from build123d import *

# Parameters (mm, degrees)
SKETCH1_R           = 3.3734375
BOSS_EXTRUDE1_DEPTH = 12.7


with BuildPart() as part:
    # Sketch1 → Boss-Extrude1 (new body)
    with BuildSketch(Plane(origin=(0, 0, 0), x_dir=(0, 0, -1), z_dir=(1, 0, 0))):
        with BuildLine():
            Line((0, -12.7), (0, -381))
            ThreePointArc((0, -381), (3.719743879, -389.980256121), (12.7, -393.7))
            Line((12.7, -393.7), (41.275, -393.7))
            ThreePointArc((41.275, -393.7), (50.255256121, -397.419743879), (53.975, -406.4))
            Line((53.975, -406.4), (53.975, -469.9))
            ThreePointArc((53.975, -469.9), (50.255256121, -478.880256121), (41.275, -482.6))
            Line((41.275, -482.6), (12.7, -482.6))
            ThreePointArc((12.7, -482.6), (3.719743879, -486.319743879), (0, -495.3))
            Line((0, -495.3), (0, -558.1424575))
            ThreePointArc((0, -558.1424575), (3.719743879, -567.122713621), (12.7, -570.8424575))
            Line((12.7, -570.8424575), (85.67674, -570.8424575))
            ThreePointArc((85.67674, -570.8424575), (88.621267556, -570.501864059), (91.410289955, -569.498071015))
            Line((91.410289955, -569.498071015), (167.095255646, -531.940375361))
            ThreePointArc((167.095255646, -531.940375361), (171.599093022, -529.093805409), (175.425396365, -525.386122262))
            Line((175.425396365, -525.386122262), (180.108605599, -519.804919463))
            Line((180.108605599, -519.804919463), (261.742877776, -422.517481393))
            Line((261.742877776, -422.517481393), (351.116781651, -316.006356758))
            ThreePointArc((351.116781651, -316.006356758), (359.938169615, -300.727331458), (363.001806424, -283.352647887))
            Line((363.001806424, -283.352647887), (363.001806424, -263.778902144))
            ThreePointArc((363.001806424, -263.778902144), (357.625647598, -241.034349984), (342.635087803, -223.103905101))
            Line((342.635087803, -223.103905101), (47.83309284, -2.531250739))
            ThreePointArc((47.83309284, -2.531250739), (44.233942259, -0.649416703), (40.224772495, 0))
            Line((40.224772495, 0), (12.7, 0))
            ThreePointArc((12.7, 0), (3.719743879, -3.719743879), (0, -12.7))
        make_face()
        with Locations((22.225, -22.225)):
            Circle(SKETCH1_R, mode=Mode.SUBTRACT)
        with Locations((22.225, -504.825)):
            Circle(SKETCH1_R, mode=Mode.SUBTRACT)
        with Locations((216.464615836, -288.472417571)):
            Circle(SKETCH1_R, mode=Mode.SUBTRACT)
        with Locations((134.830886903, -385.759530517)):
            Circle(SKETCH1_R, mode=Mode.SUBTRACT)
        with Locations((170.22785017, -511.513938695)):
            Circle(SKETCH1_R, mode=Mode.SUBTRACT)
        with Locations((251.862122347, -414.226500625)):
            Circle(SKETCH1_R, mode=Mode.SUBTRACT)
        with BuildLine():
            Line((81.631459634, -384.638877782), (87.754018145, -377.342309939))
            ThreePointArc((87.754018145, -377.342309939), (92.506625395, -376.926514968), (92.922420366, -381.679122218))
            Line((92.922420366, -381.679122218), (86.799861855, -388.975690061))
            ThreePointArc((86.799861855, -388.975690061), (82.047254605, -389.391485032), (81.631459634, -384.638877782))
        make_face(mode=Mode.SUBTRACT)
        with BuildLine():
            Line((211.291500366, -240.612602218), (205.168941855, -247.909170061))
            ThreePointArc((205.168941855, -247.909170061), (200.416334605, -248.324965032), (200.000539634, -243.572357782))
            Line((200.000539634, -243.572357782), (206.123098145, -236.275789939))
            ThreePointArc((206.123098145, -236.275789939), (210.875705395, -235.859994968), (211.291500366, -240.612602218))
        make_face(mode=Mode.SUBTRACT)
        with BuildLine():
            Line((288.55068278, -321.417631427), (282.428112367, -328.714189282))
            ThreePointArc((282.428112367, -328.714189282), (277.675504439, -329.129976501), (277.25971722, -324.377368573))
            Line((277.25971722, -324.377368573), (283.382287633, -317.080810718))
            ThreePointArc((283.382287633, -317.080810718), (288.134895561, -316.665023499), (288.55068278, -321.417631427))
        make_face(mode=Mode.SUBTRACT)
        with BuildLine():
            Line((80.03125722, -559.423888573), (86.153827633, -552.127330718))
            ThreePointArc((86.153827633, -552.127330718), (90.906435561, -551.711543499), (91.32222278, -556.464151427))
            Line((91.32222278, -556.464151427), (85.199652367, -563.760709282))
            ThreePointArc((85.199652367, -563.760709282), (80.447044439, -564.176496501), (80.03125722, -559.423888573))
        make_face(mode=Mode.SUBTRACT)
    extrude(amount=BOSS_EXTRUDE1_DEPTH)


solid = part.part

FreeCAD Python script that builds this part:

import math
import FreeCAD as App
import Part
import Sketcher
from FreeCAD import Vector
Q = App.Units.Quantity

doc = App.newDocument("Part")
body = doc.addObject("PartDesign::Body", "Body")

# Sketch on YZ plane
sketch1 = body.newObject("Sketcher::SketchObject", "Sketch")
sketch1.AttachmentSupport = (doc.getObject("YZ_Plane"), [""])
sketch1.MapMode = "FlatFace"
sketch1.addGeometry(Part.LineSegment(Vector(-12.7, 0, 0), Vector(-381, 0, 0)), False)
sketch1.addGeometry(Part.ArcOfCircle(Part.Circle(Vector(-381, -12.7, 0), Vector(0, 0, 1), 12.7), math.radians(90), math.radians(180)), False)
sketch1.addGeometry(Part.LineSegment(Vector(-393.7, -12.7, 0), Vector(-393.7, -41.275, 0)), False)
sketch1.addGeometry(Part.ArcOfCircle(Part.Circle(Vector(-406.4, -41.275, 0), Vector(0, 0, 1), 12.7), math.radians(-90), math.radians(0)), False)
sketch1.addGeometry(Part.LineSegment(Vector(-406.4, -53.975, 0), Vector(-469.9, -53.975, 0)), False)
sketch1.addGeometry(Part.ArcOfCircle(Part.Circle(Vector(-469.9, -41.275, 0), Vector(0, 0, 1), 12.7), math.radians(180), math.radians(270)), False)
sketch1.addGeometry(Part.LineSegment(Vector(-482.6, -41.275, 0), Vector(-482.6, -12.7, 0)), False)
sketch1.addGeometry(Part.ArcOfCircle(Part.Circle(Vector(-495.3, -12.7, 0), Vector(0, 0, 1), 12.7), math.radians(0), math.radians(90)), False)
sketch1.addGeometry(Part.LineSegment(Vector(-495.3, 0, 0), Vector(-558.142457, 0, 0)), False)
sketch1.addGeometry(Part.ArcOfCircle(Part.Circle(Vector(-558.142457, -12.7, 0), Vector(0, 0, 1), 12.7), math.radians(90), math.radians(180)), False)
sketch1.addGeometry(Part.LineSegment(Vector(-570.842458, -12.7, 0), Vector(-570.842458, -85.67674, 0)), False)
sketch1.addGeometry(Part.ArcOfCircle(Part.Circle(Vector(-557.94402, -85.67674, 0), Vector(0, 0, 1), 12.898438), math.radians(-180), math.radians(-153.607682)), False)
sketch1.addGeometry(Part.LineSegment(Vector(-569.498071, -91.41029, 0), Vector(-531.940375, -167.095256, 0)), False)
sketch1.addGeometry(Part.ArcOfCircle(Part.Circle(Vector(-508.732731, -155.578759, 0), Vector(0, 0, 1), 25.908), math.radians(-153.607682), math.radians(-130.000145)), False)
sketch1.addGeometry(Part.LineSegment(Vector(-525.386122, -175.425396, 0), Vector(-519.804919, -180.108606, 0)), False)
sketch1.addGeometry(Part.LineSegment(Vector(-519.804919, -180.108606, 0), Vector(-422.517481, -261.742878, 0)), False)
sketch1.addGeometry(Part.LineSegment(Vector(-422.517481, -261.742878, 0), Vector(-316.006357, -351.116782, 0)), False)
sketch1.addGeometry(Part.ArcOfCircle(Part.Circle(Vector(-283.352648, -312.201806, 0), Vector(0, 0, 1), 50.8), math.radians(-130.000145), math.radians(-90)), False)
sketch1.addGeometry(Part.LineSegment(Vector(-283.352648, -363.001806, 0), Vector(-263.778902, -363.001806, 0)), False)
sketch1.addGeometry(Part.ArcOfCircle(Part.Circle(Vector(-263.778902, -312.201806, 0), Vector(0, 0, 1), 50.8), math.radians(-90), math.radians(-36.80406)), False)
sketch1.addGeometry(Part.LineSegment(Vector(-223.103905, -342.635088, 0), Vector(-2.531251, -47.833093, 0)), False)
sketch1.addGeometry(Part.ArcOfCircle(Part.Circle(Vector(-12.7, -40.224772, 0), Vector(0, 0, 1), 12.7), math.radians(-36.80406), math.radians(0)), False)
sketch1.addGeometry(Part.LineSegment(Vector(0, -40.224772, 0), Vector(0, -12.7, 0)), False)
sketch1.addGeometry(Part.ArcOfCircle(Part.Circle(Vector(-12.7, -12.7, 0), Vector(0, 0, 1), 12.7), math.radians(0), math.radians(90)), False)
sketch1.addGeometry(Part.Circle(Vector(-504.825, -22.225, 0), Vector(0, 0, 1), 3.373438), False)
sketch1.addGeometry(Part.ArcOfCircle(Part.Circle(Vector(-561.592299, -82.615455, 0), Vector(0, 0, 1), 3.373438), math.radians(49.999855), math.radians(229.999855)), False)
sketch1.addGeometry(Part.LineSegment(Vector(-559.423889, -80.031257, 0), Vector(-552.127331, -86.153828, 0)), False)
sketch1.addGeometry(Part.ArcOfCircle(Part.Circle(Vector(-554.295741, -88.738025, 0), Vector(0, 0, 1), 3.373438), math.radians(-130.000145), math.radians(49.999855)), False)
sketch1.addGeometry(Part.LineSegment(Vector(-556.464151, -91.322223, 0), Vector(-563.760709, -85.199652, 0)), False)
sketch1.addGeometry(Part.ArcOfCircle(Part.Circle(Vector(-386.807284, -84.215661, 0), Vector(0, 0, 1), 3.373438), math.radians(49.999949), math.radians(229.999949)), False)
sketch1.addGeometry(Part.LineSegment(Vector(-384.638878, -81.63146, 0), Vector(-377.34231, -87.754018, 0)), False)
sketch1.addGeometry(Part.ArcOfCircle(Part.Circle(Vector(-379.510716, -90.338219, 0), Vector(0, 0, 1), 3.373438), math.radians(-130.000051), math.radians(49.999949)), False)
sketch1.addGeometry(Part.LineSegment(Vector(-381.679122, -92.92242, 0), Vector(-388.97569, -86.799862, 0)), False)
sketch1.addGeometry(Part.Circle(Vector(-385.759531, -134.830887, 0), Vector(0, 0, 1), 3.373438), False)
sketch1.addGeometry(Part.Circle(Vector(-511.513939, -170.22785, 0), Vector(0, 0, 1), 3.373438), False)
sketch1.addGeometry(Part.Circle(Vector(-414.226501, -251.862122, 0), Vector(0, 0, 1), 3.373438), False)
sketch1.addGeometry(Part.ArcOfCircle(Part.Circle(Vector(-319.249221, -285.966485, 0), Vector(0, 0, 1), 3.373438), math.radians(-130.000145), math.radians(49.999855)), False)
sketch1.addGeometry(Part.LineSegment(Vector(-321.417631, -288.550683, 0), Vector(-328.714189, -282.428112, 0)), False)
sketch1.addGeometry(Part.ArcOfCircle(Part.Circle(Vector(-326.545779, -279.843915, 0), Vector(0, 0, 1), 3.373438), math.radians(49.999855), math.radians(229.999855)), False)
sketch1.addGeometry(Part.LineSegment(Vector(-324.377369, -277.259717, 0), Vector(-317.080811, -283.382288, 0)), False)
sketch1.addGeometry(Part.Circle(Vector(-22.225, -22.225, 0), Vector(0, 0, 1), 3.373438), False)
sketch1.addGeometry(Part.Circle(Vector(-288.472418, -216.464616, 0), Vector(0, 0, 1), 3.373438), False)
sketch1.addGeometry(Part.ArcOfCircle(Part.Circle(Vector(-238.444196, -208.707299, 0), Vector(0, 0, 1), 3.373438), math.radians(-130.000051), math.radians(49.999949)), False)
sketch1.addGeometry(Part.LineSegment(Vector(-240.612602, -211.2915, 0), Vector(-247.90917, -205.168942, 0)), False)
sketch1.addGeometry(Part.ArcOfCircle(Part.Circle(Vector(-245.740764, -202.584741, 0), Vector(0, 0, 1), 3.373438), math.radians(49.999949), math.radians(229.999949)), False)
sketch1.addGeometry(Part.LineSegment(Vector(-243.572358, -200.00054, 0), Vector(-236.27579, -206.123098, 0)), False)
sketch1.addConstraint(Sketcher.Constraint("Coincident", 0, 2, 1, 1))
sketch1.addConstraint(Sketcher.Constraint("Coincident", 1, 2, 2, 1))
sketch1.addConstraint(Sketcher.Constraint("Coincident", 2, 2, 3, 2))
sketch1.addConstraint(Sketcher.Constraint("Coincident", 3, 1, 4, 1))
sketch1.addConstraint(Sketcher.Constraint("Coincident", 4, 2, 5, 2))
sketch1.addConstraint(Sketcher.Constraint("Coincident", 5, 1, 6, 1))
sketch1.addConstraint(Sketcher.Constraint("Coincident", 6, 2, 7, 1))
sketch1.addConstraint(Sketcher.Constraint("Coincident", 7, 2, 8, 1))
sketch1.addConstraint(Sketcher.Constraint("Coincident", 8, 2, 9, 1))
sketch1.addConstraint(Sketcher.Constraint("Coincident", 9, 2, 10, 1))
sketch1.addConstraint(Sketcher.Constraint("Coincident", 10, 2, 11, 1))
sketch1.addConstraint(Sketcher.Constraint("Coincident", 11, 2, 12, 1))
sketch1.addConstraint(Sketcher.Constraint("Coincident", 12, 2, 13, 1))
sketch1.addConstraint(Sketcher.Constraint("Coincident", 13, 2, 14, 1))
sketch1.addConstraint(Sketcher.Constraint("Coincident", 14, 2, 15, 1))
sketch1.addConstraint(Sketcher.Constraint("Coincident", 15, 2, 16, 1))
sketch1.addConstraint(Sketcher.Constraint("Coincident", 16, 2, 17, 1))
sketch1.addConstraint(Sketcher.Constraint("Coincident", 17, 2, 18, 1))
sketch1.addConstraint(Sketcher.Constraint("Coincident", 18, 2, 19, 1))
sketch1.addConstraint(Sketcher.Constraint("Coincident", 19, 2, 20, 1))
sketch1.addConstraint(Sketcher.Constraint("Coincident", 20, 2, 21, 1))
sketch1.addConstraint(Sketcher.Constraint("Coincident", 21, 2, 22, 1))
sketch1.addConstraint(Sketcher.Constraint("Coincident", 22, 2, 23, 1))
sketch1.addConstraint(Sketcher.Constraint("Coincident", 23, 2, 0, 1))
sketch1.addConstraint(Sketcher.Constraint("Coincident", 25, 1, 26, 1))
sketch1.addConstraint(Sketcher.Constraint("Coincident", 26, 2, 27, 2))
sketch1.addConstraint(Sketcher.Constraint("Coincident", 27, 1, 28, 1))
sketch1.addConstraint(Sketcher.Constraint("Coincident", 28, 2, 25, 2))
sketch1.addConstraint(Sketcher.Constraint("Coincident", 29, 1, 30, 1))
sketch1.addConstraint(Sketcher.Constraint("Coincident", 30, 2, 31, 2))
sketch1.addConstraint(Sketcher.Constraint("Coincident", 31, 1, 32, 1))
sketch1.addConstraint(Sketcher.Constraint("Coincident", 32, 2, 29, 2))
sketch1.addConstraint(Sketcher.Constraint("Coincident", 36, 1, 37, 1))
sketch1.addConstraint(Sketcher.Constraint("Coincident", 37, 2, 38, 2))
sketch1.addConstraint(Sketcher.Constraint("Coincident", 38, 1, 39, 1))
sketch1.addConstraint(Sketcher.Constraint("Coincident", 39, 2, 36, 2))
sketch1.addConstraint(Sketcher.Constraint("Coincident", 42, 1, 43, 1))
sketch1.addConstraint(Sketcher.Constraint("Coincident", 43, 2, 44, 2))
sketch1.addConstraint(Sketcher.Constraint("Coincident", 44, 1, 45, 1))
sketch1.addConstraint(Sketcher.Constraint("Coincident", 45, 2, 42, 2))
sketch1.addConstraint(Sketcher.Constraint("Horizontal", 0))
sketch1.addConstraint(Sketcher.Constraint("Vertical", 2))
sketch1.addConstraint(Sketcher.Constraint("Horizontal", 4))
sketch1.addConstraint(Sketcher.Constraint("Vertical", 6))
sketch1.addConstraint(Sketcher.Constraint("Horizontal", 8))
sketch1.addConstraint(Sketcher.Constraint("Vertical", 10))
sketch1.addConstraint(Sketcher.Constraint("Horizontal", 18))
sketch1.addConstraint(Sketcher.Constraint("Vertical", 22))
sketch1.addConstraint(Sketcher.Constraint("PointOnObject", 0, 2, -1))
sketch1.addConstraint(Sketcher.Constraint("PointOnObject", 7, 2, -1))
sketch1.addConstraint(Sketcher.Constraint("PointOnObject", 21, 2, -2))
sketch1.addConstraint(Sketcher.Constraint("Radius", 17, Q("2 in")))
sketch1.addConstraint(Sketcher.Constraint("Radius", 19, Q("2 in")))
sketch1.addConstraint(Sketcher.Constraint("Radius", 1, Q("0.5 in")))
sketch1.addConstraint(Sketcher.Constraint("Radius", 3, Q("0.5 in")))
sketch1.addConstraint(Sketcher.Constraint("Radius", 5, Q("0.5 in")))
sketch1.addConstraint(Sketcher.Constraint("Radius", 7, Q("0.5 in")))
sketch1.addConstraint(Sketcher.Constraint("Radius", 9, Q("0.5 in")))
sketch1.addConstraint(Sketcher.Constraint("Radius", 21, Q("0.5 in")))
sketch1.addConstraint(Sketcher.Constraint("Radius", 23, Q("0.5 in")))
sketch1.addConstraint(Sketcher.Constraint("Radius", 13, Q("1.02 in")))
sketch1.addConstraint(Sketcher.Constraint("Distance", 15, Q("5 in")))
sketch1.addConstraint(Sketcher.Constraint("Diameter", 24, Q("0.265625 in")))
sketch1.addConstraint(Sketcher.Constraint("Diameter", 33, Q("0.265625 in")))
sketch1.addConstraint(Sketcher.Constraint("Diameter", 34, Q("0.265625 in")))
sketch1.addConstraint(Sketcher.Constraint("Diameter", 35, Q("0.265625 in")))
sketch1.addConstraint(Sketcher.Constraint("Diameter", 40, Q("0.265625 in")))
sketch1.addConstraint(Sketcher.Constraint("Diameter", 41, Q("0.265625 in")))
sketch1.addConstraint(Sketcher.Constraint("DistanceX", 0, 2, 0, 1, Q("14.5 in")))
sketch1.addConstraint(Sketcher.Constraint("DistanceX", 4, 2, 4, 1, Q("2.5 in")))
sketch1.addConstraint(Sketcher.Constraint("DistanceX", 1, 3, -1, 1, Q("15 in")))
sketch1.addConstraint(Sketcher.Constraint("DistanceX", 0, 2, -1, 1, Q("15 in")))
sketch1.addConstraint(Sketcher.Constraint("DistanceX", 3, 1, -1, 1, Q("16 in")))
sketch1.addConstraint(Sketcher.Constraint("DistanceX", 5, 1, -1, 1, Q("19 in")))
sketch1.addConstraint(Sketcher.Constraint("DistanceY", 1, 2, -1, 1, Q("0.5 in")))
sketch1.addConstraint(Sketcher.Constraint("DistanceY", 6, 2, -1, 1, Q("0.5 in")))
sketch1.addConstraint(Sketcher.Constraint("DistanceX", 7, 2, -1, 1, Q("19.5 in")))
sketch1.addConstraint(Sketcher.Constraint("DistanceY", 9, 2, -1, 1, Q("0.5 in")))
sketch1.addConstraint(Sketcher.Constraint("DistanceY", 22, 2, -1, 1, Q("0.5 in")))
sketch1.addConstraint(Sketcher.Constraint("DistanceY", 2, 2, 2, 1, Q("1.125 in")))
sketch1.addConstraint(Sketcher.Constraint("DistanceY", 6, 1, 6, 2, Q("1.125 in")))
sketch1.addConstraint(Sketcher.Constraint("Distance", 26, Q("0.375 in")))
sketch1.addConstraint(Sketcher.Constraint("Distance", 28, Q("0.375 in")))
sketch1.addConstraint(Sketcher.Constraint("Distance", 30, Q("0.375 in")))
sketch1.addConstraint(Sketcher.Constraint("Distance", 32, Q("0.375 in")))
sketch1.addConstraint(Sketcher.Constraint("Distance", 37, Q("0.375 in")))
sketch1.addConstraint(Sketcher.Constraint("Distance", 39, Q("0.375 in")))
sketch1.addConstraint(Sketcher.Constraint("Distance", 43, Q("0.375 in")))
sketch1.addConstraint(Sketcher.Constraint("Distance", 45, Q("0.375 in")))
sketch1.addConstraint(Sketcher.Constraint("DistanceY", 10, 2, 10, 1, Q("2.8731 in")))
sketch1.addConstraint(Sketcher.Constraint("DistanceY", 3, 3, -1, 1, Q("1.625 in")))
sketch1.addConstraint(Sketcher.Constraint("DistanceX", 24, 3, -1, 1, Q("19.875 in")))
sketch1.addConstraint(Sketcher.Constraint("DistanceY", 24, 3, -1, 1, Q("0.875 in")))
sketch1.addConstraint(Sketcher.Constraint("DistanceX", 40, 3, -1, 1, Q("0.875 in")))
sketch1.addConstraint(Sketcher.Constraint("DistanceY", 40, 3, -1, 1, Q("0.875 in")))
sketch1.addConstraint(Sketcher.Constraint("DistanceX", 11, 3, -1, 1, Q("21.9663 in")))
sketch1.addConstraint(Sketcher.Constraint("DistanceY", 11, 3, -1, 1, Q("3.3731 in")))
sketch1.addConstraint(Sketcher.Constraint("Radius", 11, Q("12.898438 mm")))
sketch1.addConstraint(Sketcher.Constraint("Radius", 25, Q("3.373438 mm")))
sketch1.addConstraint(Sketcher.Constraint("Radius", 27, Q("3.373438 mm")))
sketch1.addConstraint(Sketcher.Constraint("Radius", 29, Q("3.373438 mm")))
sketch1.addConstraint(Sketcher.Constraint("Radius", 31, Q("3.373438 mm")))
sketch1.addConstraint(Sketcher.Constraint("Radius", 36, Q("3.373438 mm")))
sketch1.addConstraint(Sketcher.Constraint("Radius", 38, Q("3.373438 mm")))
sketch1.addConstraint(Sketcher.Constraint("Radius", 42, Q("3.373438 mm")))
sketch1.addConstraint(Sketcher.Constraint("Radius", 44, Q("3.373438 mm")))
sketch1.addConstraint(Sketcher.Constraint("DistanceX", 25, 3, -1, 1, Q("561.592299 mm")))
sketch1.addConstraint(Sketcher.Constraint("DistanceX", 35, 3, -1, 1, Q("414.226501 mm")))
sketch1.addConstraint(Sketcher.Constraint("DistanceY", 42, 3, -1, 1, Q("208.707299 mm")))
sketch1.addConstraint(Sketcher.Constraint("DistanceY", 42, 1, -1, 1, Q("211.2915 mm")))
sketch1.addConstraint(Sketcher.Constraint("DistanceY", 45, 2, -1, 1, Q("206.123098 mm")))
sketch1.addConstraint(Sketcher.Constraint("Distance", 14, Q("7.285758 mm")))
sketch1.addConstraint(Sketcher.Constraint("Distance", 20, Q("368.185432 mm")))
sketch1.addConstraint(Sketcher.Constraint("DistanceX", 8, 2, 8, 1, Q("62.842457 mm")))
sketch1.addConstraint(Sketcher.Constraint("DistanceX", 18, 1, 18, 2, Q("19.573746 mm")))
sketch1.addConstraint(Sketcher.Constraint("DistanceY", 22, 1, 22, 2, Q("27.524772 mm")))
sketch1.addConstraint(Sketcher.Constraint("DistanceX", 13, 3, -1, 1, Q("508.732731 mm")))
sketch1.addConstraint(Sketcher.Constraint("DistanceY", 13, 3, -1, 1, Q("155.578759 mm")))
sketch1.addConstraint(Sketcher.Constraint("DistanceX", 27, 3, -1, 1, Q("554.295741 mm")))
sketch1.addConstraint(Sketcher.Constraint("DistanceY", 29, 3, -1, 1, Q("84.215661 mm")))
sketch1.addConstraint(Sketcher.Constraint("DistanceY", 31, 3, -1, 1, Q("90.338219 mm")))
sketch1.addConstraint(Sketcher.Constraint("DistanceX", 33, 3, -1, 1, Q("385.759531 mm")))
sketch1.addConstraint(Sketcher.Constraint("DistanceX", 34, 3, -1, 1, Q("511.513939 mm")))
sketch1.addConstraint(Sketcher.Constraint("DistanceY", 34, 3, -1, 1, Q("170.22785 mm")))
sketch1.addConstraint(Sketcher.Constraint("DistanceX", 36, 3, -1, 1, Q("319.249221 mm")))
sketch1.addConstraint(Sketcher.Constraint("DistanceX", 38, 3, -1, 1, Q("326.545779 mm")))
sketch1.addConstraint(Sketcher.Constraint("DistanceY", 44, 3, -1, 1, Q("202.584741 mm")))
sketch1.addConstraint(Sketcher.Constraint("DistanceX", 11, 2, -1, 1, Q("569.498071 mm")))
sketch1.addConstraint(Sketcher.Constraint("DistanceX", 14, 2, -1, 1, Q("519.804919 mm")))
sketch1.addConstraint(Sketcher.Constraint("DistanceX", 15, 2, -1, 1, Q("422.517481 mm")))
sketch1.addConstraint(Sketcher.Constraint("DistanceY", 16, 2, -1, 1, Q("351.116782 mm")))
sketch1.addConstraint(Sketcher.Constraint("DistanceX", 20, 2, -1, 1, Q("2.531251 mm")))
sketch1.addConstraint(Sketcher.Constraint("DistanceX", 25, 1, -1, 1, Q("559.423889 mm")))
sketch1.addConstraint(Sketcher.Constraint("DistanceX", 26, 2, -1, 1, Q("552.127331 mm")))
sketch1.addConstraint(Sketcher.Constraint("DistanceX", 27, 1, -1, 1, Q("556.464151 mm")))
sketch1.addConstraint(Sketcher.Constraint("DistanceY", 29, 1, -1, 1, Q("81.63146 mm")))
sketch1.addConstraint(Sketcher.Constraint("DistanceX", 30, 2, -1, 1, Q("377.34231 mm")))
sketch1.addConstraint(Sketcher.Constraint("DistanceY", 30, 2, -1, 1, Q("87.754018 mm")))
sketch1.addConstraint(Sketcher.Constraint("DistanceY", 31, 1, -1, 1, Q("92.92242 mm")))
sketch1.addConstraint(Sketcher.Constraint("DistanceX", 36, 1, -1, 1, Q("321.417631 mm")))
sketch1.addConstraint(Sketcher.Constraint("DistanceX", 37, 2, -1, 1, Q("328.714189 mm")))
sketch1.addConstraint(Sketcher.Constraint("DistanceX", 38, 1, -1, 1, Q("324.377369 mm")))
sketch1.addConstraint(Sketcher.Constraint("DistanceX", 43, 2, -1, 1, Q("247.90917 mm")))
sketch1.addConstraint(Sketcher.Constraint("DistanceY", 43, 2, -1, 1, Q("205.168942 mm")))
sketch1.addConstraint(Sketcher.Constraint("Distance", 12, Q("84.491387 mm")))
sketch1.addConstraint(Sketcher.Constraint("Distance", 16, Q("139.040693 mm")))
sketch1.addConstraint(Sketcher.Constraint("DistanceX", 17, 3, -1, 1, Q("283.352648 mm")))
sketch1.addConstraint(Sketcher.Constraint("DistanceY", 17, 3, -1, 1, Q("312.201806 mm")))
sketch1.addConstraint(Sketcher.Constraint("DistanceX", 19, 3, -1, 1, Q("263.778902 mm")))
sketch1.addConstraint(Sketcher.Constraint("DistanceY", 21, 3, -1, 1, Q("40.224772 mm")))
sketch1.addConstraint(Sketcher.Constraint("DistanceY", 25, 3, -1, 1, Q("82.615455 mm")))
sketch1.addConstraint(Sketcher.Constraint("DistanceY", 33, 3, -1, 1, Q("134.830887 mm")))
sketch1.addConstraint(Sketcher.Constraint("DistanceY", 35, 3, -1, 1, Q("251.862122 mm")))
sketch1.addConstraint(Sketcher.Constraint("DistanceY", 36, 3, -1, 1, Q("285.966485 mm")))
sketch1.addConstraint(Sketcher.Constraint("DistanceX", 41, 3, -1, 1, Q("288.472418 mm")))
sketch1.addConstraint(Sketcher.Constraint("DistanceY", 41, 3, -1, 1, Q("216.464616 mm")))
sketch1.addConstraint(Sketcher.Constraint("DistanceX", 17, 2, -1, 1, Q("283.352648 mm")))
pad1 = body.newObject("PartDesign::Pad", "Pad")
pad1.Profile = sketch1
pad1.Length = Q("0.5 in")

doc.recompute()
